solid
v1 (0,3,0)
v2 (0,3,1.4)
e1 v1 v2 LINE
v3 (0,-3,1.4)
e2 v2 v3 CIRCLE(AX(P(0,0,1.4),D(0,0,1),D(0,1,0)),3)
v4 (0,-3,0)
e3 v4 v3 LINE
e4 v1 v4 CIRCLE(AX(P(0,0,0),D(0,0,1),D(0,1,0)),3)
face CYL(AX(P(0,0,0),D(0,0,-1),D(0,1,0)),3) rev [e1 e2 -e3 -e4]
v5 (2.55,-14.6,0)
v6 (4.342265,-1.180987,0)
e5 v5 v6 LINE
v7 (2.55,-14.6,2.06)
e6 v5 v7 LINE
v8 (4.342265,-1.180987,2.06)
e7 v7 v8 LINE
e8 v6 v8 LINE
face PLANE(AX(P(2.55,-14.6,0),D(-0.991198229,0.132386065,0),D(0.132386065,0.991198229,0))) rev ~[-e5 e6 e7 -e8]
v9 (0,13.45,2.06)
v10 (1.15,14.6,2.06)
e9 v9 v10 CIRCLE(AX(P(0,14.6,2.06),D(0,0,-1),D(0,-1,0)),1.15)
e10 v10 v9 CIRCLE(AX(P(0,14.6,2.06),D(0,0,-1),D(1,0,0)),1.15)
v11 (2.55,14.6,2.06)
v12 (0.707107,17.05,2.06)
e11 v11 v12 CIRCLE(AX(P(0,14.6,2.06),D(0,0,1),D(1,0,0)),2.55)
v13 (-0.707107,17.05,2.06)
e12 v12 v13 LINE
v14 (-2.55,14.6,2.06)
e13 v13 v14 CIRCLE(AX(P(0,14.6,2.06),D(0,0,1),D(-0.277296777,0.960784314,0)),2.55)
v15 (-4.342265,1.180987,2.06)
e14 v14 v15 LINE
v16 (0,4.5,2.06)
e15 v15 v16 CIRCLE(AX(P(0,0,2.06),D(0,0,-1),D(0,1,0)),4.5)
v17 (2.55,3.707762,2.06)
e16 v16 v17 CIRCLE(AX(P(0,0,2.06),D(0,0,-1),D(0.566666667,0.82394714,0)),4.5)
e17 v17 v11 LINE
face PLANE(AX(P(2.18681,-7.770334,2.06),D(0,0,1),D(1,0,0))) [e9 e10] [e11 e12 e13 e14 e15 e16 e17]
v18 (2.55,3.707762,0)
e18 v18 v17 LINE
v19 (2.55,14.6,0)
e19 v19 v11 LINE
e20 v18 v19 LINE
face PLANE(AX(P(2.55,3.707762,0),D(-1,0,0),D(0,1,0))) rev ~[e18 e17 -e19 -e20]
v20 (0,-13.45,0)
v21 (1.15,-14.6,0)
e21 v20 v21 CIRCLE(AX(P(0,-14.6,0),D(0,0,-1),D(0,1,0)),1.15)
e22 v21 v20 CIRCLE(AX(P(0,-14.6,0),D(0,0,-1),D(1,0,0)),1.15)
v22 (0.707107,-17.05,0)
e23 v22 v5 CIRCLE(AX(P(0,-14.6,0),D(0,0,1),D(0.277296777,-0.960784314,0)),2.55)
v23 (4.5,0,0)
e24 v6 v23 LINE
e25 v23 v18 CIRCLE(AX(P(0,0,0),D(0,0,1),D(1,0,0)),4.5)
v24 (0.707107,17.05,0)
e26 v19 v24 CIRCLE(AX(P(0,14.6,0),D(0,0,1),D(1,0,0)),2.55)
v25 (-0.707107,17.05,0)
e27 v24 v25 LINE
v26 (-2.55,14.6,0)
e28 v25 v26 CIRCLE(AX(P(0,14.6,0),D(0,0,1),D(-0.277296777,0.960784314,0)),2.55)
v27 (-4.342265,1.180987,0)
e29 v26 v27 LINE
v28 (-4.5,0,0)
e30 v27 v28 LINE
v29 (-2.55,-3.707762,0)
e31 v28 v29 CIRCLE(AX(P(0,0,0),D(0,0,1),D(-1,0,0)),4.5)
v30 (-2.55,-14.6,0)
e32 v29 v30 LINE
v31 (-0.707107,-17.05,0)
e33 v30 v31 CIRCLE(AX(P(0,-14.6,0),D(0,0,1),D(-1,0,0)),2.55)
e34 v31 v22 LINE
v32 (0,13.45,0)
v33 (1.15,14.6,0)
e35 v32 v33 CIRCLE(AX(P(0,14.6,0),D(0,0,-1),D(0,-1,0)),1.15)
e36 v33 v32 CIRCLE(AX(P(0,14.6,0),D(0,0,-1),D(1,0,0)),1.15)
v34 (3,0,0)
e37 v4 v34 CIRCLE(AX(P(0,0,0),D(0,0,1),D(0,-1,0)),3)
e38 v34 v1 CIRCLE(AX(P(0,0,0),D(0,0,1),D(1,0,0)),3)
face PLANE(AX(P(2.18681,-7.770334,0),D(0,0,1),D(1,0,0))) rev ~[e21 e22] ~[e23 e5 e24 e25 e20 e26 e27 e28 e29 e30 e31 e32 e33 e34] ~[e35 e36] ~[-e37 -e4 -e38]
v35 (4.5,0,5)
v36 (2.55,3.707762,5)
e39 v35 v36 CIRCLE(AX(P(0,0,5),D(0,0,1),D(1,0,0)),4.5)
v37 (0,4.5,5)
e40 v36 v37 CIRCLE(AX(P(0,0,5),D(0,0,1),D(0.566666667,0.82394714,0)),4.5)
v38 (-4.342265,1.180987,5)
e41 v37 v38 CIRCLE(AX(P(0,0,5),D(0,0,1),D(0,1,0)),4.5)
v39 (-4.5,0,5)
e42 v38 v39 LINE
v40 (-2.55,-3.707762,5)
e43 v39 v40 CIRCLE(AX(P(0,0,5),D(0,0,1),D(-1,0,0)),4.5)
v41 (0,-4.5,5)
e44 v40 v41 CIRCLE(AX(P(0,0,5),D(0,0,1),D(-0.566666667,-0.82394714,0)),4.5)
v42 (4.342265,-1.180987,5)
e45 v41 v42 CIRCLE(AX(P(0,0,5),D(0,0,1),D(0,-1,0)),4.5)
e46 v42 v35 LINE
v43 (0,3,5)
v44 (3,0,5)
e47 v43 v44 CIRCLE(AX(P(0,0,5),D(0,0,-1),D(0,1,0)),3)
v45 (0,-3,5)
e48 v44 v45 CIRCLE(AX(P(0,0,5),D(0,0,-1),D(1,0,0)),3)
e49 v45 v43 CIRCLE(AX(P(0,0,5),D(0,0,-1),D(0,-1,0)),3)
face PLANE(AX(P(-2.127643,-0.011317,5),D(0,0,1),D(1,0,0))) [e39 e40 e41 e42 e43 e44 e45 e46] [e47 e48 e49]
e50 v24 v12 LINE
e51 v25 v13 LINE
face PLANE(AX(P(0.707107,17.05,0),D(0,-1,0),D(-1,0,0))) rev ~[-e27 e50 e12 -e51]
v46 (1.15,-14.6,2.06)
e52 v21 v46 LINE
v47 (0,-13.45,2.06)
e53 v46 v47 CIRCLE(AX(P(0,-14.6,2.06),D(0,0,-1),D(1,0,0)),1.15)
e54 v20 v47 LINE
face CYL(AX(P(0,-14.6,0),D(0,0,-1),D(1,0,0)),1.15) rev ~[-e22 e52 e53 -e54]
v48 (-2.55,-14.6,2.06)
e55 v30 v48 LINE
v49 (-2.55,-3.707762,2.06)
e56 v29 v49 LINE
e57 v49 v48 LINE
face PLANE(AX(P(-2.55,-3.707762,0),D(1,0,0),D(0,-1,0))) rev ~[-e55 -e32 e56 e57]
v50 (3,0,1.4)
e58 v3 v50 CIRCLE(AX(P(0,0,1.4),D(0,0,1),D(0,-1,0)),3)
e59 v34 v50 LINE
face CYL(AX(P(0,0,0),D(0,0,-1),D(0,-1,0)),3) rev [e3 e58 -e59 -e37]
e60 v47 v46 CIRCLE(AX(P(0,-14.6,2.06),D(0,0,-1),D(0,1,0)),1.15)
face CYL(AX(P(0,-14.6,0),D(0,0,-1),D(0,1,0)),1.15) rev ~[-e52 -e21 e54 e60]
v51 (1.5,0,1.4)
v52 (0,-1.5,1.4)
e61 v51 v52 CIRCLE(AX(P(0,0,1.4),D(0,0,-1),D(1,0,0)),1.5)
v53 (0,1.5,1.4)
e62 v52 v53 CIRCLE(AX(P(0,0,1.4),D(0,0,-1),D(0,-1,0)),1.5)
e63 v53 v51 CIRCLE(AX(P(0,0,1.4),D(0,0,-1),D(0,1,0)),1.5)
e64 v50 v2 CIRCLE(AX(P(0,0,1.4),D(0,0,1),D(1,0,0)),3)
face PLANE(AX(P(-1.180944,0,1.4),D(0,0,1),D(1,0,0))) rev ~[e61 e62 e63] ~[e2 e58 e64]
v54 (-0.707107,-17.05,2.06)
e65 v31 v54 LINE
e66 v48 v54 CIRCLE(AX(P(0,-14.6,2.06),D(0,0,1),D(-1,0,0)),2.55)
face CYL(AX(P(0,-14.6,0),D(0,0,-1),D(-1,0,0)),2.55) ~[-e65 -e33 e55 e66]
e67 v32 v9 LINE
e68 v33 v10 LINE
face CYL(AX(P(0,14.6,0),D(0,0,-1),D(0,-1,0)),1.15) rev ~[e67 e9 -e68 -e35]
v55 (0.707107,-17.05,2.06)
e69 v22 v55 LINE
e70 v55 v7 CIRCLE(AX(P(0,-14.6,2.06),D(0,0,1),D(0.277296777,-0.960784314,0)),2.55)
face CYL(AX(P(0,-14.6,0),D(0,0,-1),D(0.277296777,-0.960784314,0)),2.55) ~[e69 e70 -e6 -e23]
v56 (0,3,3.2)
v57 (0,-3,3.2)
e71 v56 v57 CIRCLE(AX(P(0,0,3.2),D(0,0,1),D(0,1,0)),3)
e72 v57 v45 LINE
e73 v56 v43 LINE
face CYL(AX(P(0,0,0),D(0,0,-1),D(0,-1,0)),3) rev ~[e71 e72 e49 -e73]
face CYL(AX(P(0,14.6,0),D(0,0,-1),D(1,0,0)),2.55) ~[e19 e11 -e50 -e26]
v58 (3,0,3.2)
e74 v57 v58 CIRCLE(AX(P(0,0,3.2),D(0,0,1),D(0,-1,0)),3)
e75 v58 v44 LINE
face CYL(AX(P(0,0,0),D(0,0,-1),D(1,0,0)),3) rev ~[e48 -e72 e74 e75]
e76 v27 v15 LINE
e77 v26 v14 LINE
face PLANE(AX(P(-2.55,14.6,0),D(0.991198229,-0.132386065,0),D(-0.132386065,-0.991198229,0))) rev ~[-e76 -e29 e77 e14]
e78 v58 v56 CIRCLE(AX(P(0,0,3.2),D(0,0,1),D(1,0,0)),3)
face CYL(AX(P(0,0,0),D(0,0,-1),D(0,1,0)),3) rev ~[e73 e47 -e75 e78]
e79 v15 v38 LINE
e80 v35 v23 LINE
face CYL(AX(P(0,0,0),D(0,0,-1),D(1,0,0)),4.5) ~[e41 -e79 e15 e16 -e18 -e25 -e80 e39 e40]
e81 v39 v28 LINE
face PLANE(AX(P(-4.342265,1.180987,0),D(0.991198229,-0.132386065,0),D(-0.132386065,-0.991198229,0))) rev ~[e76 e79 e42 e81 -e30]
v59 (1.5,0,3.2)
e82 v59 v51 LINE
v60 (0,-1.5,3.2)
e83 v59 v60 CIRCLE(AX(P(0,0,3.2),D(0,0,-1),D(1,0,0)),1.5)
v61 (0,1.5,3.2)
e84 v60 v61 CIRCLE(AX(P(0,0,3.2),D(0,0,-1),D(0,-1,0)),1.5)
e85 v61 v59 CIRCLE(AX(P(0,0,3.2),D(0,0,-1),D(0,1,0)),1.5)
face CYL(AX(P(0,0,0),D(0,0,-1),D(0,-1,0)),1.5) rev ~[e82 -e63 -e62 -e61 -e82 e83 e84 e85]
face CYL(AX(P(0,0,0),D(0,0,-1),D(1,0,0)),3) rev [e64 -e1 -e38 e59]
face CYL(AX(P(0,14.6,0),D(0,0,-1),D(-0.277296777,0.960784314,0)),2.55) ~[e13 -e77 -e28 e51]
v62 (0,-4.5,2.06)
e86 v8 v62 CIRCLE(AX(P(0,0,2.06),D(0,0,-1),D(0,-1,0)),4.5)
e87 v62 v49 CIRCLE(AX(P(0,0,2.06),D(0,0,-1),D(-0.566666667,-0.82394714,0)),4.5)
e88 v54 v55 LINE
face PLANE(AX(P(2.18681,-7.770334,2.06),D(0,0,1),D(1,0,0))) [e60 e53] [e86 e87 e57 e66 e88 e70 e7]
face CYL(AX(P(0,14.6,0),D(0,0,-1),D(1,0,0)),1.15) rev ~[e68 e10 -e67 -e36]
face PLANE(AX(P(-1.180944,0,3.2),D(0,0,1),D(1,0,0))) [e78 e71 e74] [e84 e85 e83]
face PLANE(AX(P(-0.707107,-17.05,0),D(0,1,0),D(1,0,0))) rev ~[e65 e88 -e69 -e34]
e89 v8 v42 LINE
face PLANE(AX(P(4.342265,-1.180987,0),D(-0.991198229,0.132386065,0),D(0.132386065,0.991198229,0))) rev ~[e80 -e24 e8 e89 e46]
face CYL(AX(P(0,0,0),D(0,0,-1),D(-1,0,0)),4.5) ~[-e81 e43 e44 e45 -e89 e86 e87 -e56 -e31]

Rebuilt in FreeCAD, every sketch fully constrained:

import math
import FreeCAD as App
import Part
import Sketcher

V = App.Vector
Q = App.Units.Quantity

doc = App.newDocument("Part")
body = doc.addObject("PartDesign::Body", "Body")

# Sketch on XY plane
sketch1 = body.newObject("Sketcher::SketchObject", "Sketch")
sketch1.AttachmentSupport = (doc.getObject("XY_Plane"), [""])
sketch1.MapMode = "FlatFace"
sketch1.addGeometry([
    Part.LineSegment(V(2.55, -14.6, 0), V(4.342265, -1.180987, 0)),  # 0
    Part.LineSegment(V(4.342265, -1.180987, 0), V(4.5, 0, 0)),  # 1
    Part.ArcOfCircle(Part.Circle(V(0, 0, 0), V(0, 0, 1), 4.5), math.radians(0), math.radians(55.481892)),  # 2
    Part.LineSegment(V(2.55, 3.707762, 0), V(2.55, 14.6, 0)),  # 3
    Part.ArcOfCircle(Part.Circle(V(0, 14.6, 0), V(0, 0, 1), 2.55), math.radians(0), math.radians(73.901066)),  # 4
    Part.LineSegment(V(0.707107, 17.05, 0), V(-0.707107, 17.05, 0)),  # 5
    Part.ArcOfCircle(Part.Circle(V(0, 14.6, 0), V(0, 0, 1), 2.55), math.radians(106.098934), math.radians(180)),  # 6
    Part.LineSegment(V(-2.55, 14.6, 0), V(-4.342265, 1.180987, 0)),  # 7
    Part.LineSegment(V(-4.342265, 1.180987, 0), V(-4.5, 0, 0)),  # 8
    Part.ArcOfCircle(Part.Circle(V(0, 0, 0), V(0, 0, 1), 4.5), math.radians(180), math.radians(235.481892)),  # 9
    Part.LineSegment(V(-2.55, -3.707762, 0), V(-2.55, -14.6, 0)),  # 10
    Part.ArcOfCircle(Part.Circle(V(0, -14.6, 0), V(0, 0, 1), 2.55), math.radians(180), math.radians(253.901066)),  # 11
    Part.LineSegment(V(-0.707107, -17.05, 0), V(0.707107, -17.05, 0)),  # 12
    Part.ArcOfCircle(Part.Circle(V(0, -14.6, 0), V(0, 0, 1), 2.55), math.radians(-73.901066), math.radians(0)),  # 13
    Part.ArcOfCircle(Part.Circle(V(0, 0, 0), V(0, 0, 1), 1.5), math.radians(90), math.radians(270)),  # 14
    Part.ArcOfCircle(Part.Circle(V(0, 0, 0), V(0, 0, 1), 1.5), math.radians(0), math.radians(90)),  # 15
    Part.ArcOfCircle(Part.Circle(V(0, 0, 0), V(0, 0, 1), 1.5), math.radians(-90), math.radians(0)),  # 16
    Part.ArcOfCircle(Part.Circle(V(0, -14.6, 0), V(0, 0, 1), 1.15), math.radians(0), math.radians(90)),  # 17
    Part.ArcOfCircle(Part.Circle(V(0, -14.6, 0), V(0, 0, 1), 1.15), math.radians(90), math.radians(360)),  # 18
    Part.ArcOfCircle(Part.Circle(V(0, 14.6, 0), V(0, 0, 1), 1.15), math.radians(0), math.radians(270)),  # 19
    Part.ArcOfCircle(Part.Circle(V(0, 14.6, 0), V(0, 0, 1), 1.15), math.radians(-90), math.radians(0)),  # 20
], False)
sketch1.addConstraint([
    Sketcher.Constraint("Coincident", 0, 2, 1, 1),
    Sketcher.Constraint("Coincident", 1, 2, 2, 1),
    Sketcher.Constraint("Coincident", 2, 2, 3, 1),
    Sketcher.Constraint("Tangent", 3, 2, 4, 1),
    Sketcher.Constraint("Coincident", 4, 2, 5, 1),
    Sketcher.Constraint("Coincident", 5, 2, 6, 1),
    Sketcher.Constraint("Coincident", 6, 2, 7, 1),
    Sketcher.Constraint("Coincident", 7, 2, 8, 1),
    Sketcher.Constraint("Coincident", 8, 2, 9, 1),
    Sketcher.Constraint("Coincident", 9, 2, 10, 1),
    Sketcher.Constraint("Tangent", 10, 2, 11, 1),
    Sketcher.Constraint("Coincident", 11, 2, 12, 1),
    Sketcher.Constraint("Coincident", 12, 2, 13, 1),
    Sketcher.Constraint("Coincident", 13, 2, 0, 1),
    Sketcher.Constraint("Tangent", 14, 1, 15, 2),
    Sketcher.Constraint("Tangent", 15, 1, 16, 2),
    Sketcher.Constraint("Tangent", 16, 1, 14, 2),
    Sketcher.Constraint("Tangent", 17, 1, 18, 2),
    Sketcher.Constraint("Coincident", 18, 1, 17, 2),
    Sketcher.Constraint("Tangent", 19, 1, 20, 2),
    Sketcher.Constraint("Coincident", 20, 1, 19, 2),
    Sketcher.Constraint("Vertical", 3),
    Sketcher.Constraint("Horizontal", 5),
    Sketcher.Constraint("Vertical", 10),
    Sketcher.Constraint("Horizontal", 12),
    Sketcher.Constraint("Coincident", 2, 3, -1, 1),
    Sketcher.Constraint("Coincident", 9, 3, -1, 1),
    Sketcher.Constraint("Coincident", 14, 3, -1, 1),
    Sketcher.Constraint("Coincident", 6, 3, 4, 3),
    Sketcher.Constraint("Coincident", 13, 3, 11, 3),
    Sketcher.Constraint("Coincident", 17, 3, 11, 3),
    Sketcher.Constraint("Coincident", 19, 3, 4, 3),
    Sketcher.Constraint("Equal", 4, 6),
    Sketcher.Constraint("Equal", 2, 9),
    Sketcher.Constraint("Equal", 6, 11),
    Sketcher.Constraint("Equal", 11, 13),
    Sketcher.Constraint("Equal", 18, 19),
    Sketcher.Constraint("Symmetric", 4, 3, 11, 3, -1, 1),
    Sketcher.Constraint("Symmetric", 0, 2, 7, 2, -1, 1),
    Sketcher.Constraint("Symmetric", 3, 2, 6, 2, -2),
    Sketcher.Constraint("PointOnObject", 1, 2, -1),
    Sketcher.Constraint("PointOnObject", 8, 2, -1),
    Sketcher.Constraint("PointOnObject", 14, 1, -2),
    Sketcher.Constraint("PointOnObject", 15, 1, -1),
    Sketcher.Constraint("PointOnObject", 16, 1, -2),
    Sketcher.Constraint("PointOnObject", 18, 1, -2),
    Sketcher.Constraint("PointOnObject", 20, 1, -2),
    Sketcher.Constraint("Parallel", 0, 1),
    Sketcher.Constraint("Parallel", 1, 7),
    Sketcher.Constraint("Horizontal", 13, 2, 17, 1),
    Sketcher.Constraint("Horizontal", 6, 2, 19, 1),
    Sketcher.Constraint("Vertical", 5, 2, 11, 2),
    Sketcher.Constraint("Radius", 2, Q("4.5 mm")),
    Sketcher.Constraint("Radius", 14, Q("1.5 mm")),
    Sketcher.Constraint("Radius", 4, Q("2.55 mm")),
    Sketcher.Constraint("Radius", 17, Q("1.15 mm")),
    Sketcher.Constraint("DistanceY", -1, 1, 4, 3, Q("14.6 mm")),
    Sketcher.Constraint("DistanceY", -1, 1, 4, 2, Q("17.05 mm")),
    Sketcher.Constraint("Distance", 0, Q("13.538172 mm")),
])
pad1 = body.newObject("PartDesign::Pad", "Pad")
pad1.Profile = sketch1
pad1.Length = 2.06

# Sketch on XY plane
sketch2 = body.newObject("Sketcher::SketchObject", "Sketch001")
sketch2.AttachmentSupport = (doc.getObject("XY_Plane"), [""])
sketch2.MapMode = "FlatFace"
sketch2.addGeometry([
    Part.ArcOfCircle(Part.Circle(V(0, 0, 0), V(0, 0, 1), 3), math.radians(90), math.radians(270)),  # 0
    Part.ArcOfCircle(Part.Circle(V(0, 0, 0), V(0, 0, 1), 3), math.radians(-90), math.radians(0)),  # 1
    Part.ArcOfCircle(Part.Circle(V(0, 0, 0), V(0, 0, 1), 3), math.radians(0), math.radians(90)),  # 2
    Part.ArcOfCircle(Part.Circle(V(0, 0, 0), V(0, 0, 1), 1.5), math.radians(90), math.radians(270)),  # 3
    Part.ArcOfCircle(Part.Circle(V(0, 0, 0), V(0, 0, 1), 1.5), math.radians(0), math.radians(90)),  # 4
    Part.ArcOfCircle(Part.Circle(V(0, 0, 0), V(0, 0, 1), 1.5), math.radians(-90), math.radians(0)),  # 5
], False)
sketch2.addConstraint([
    Sketcher.Constraint("Tangent", 0, 2, 1, 1),
    Sketcher.Constraint("Tangent", 1, 2, 2, 1),
    Sketcher.Constraint("Tangent", 2, 2, 0, 1),
    Sketcher.Constraint("Tangent", 3, 1, 4, 2),
    Sketcher.Constraint("Tangent", 4, 1, 5, 2),
    Sketcher.Constraint("Tangent", 5, 1, 3, 2),
    Sketcher.Constraint("Coincident", 0, 3, -1, 1),
    Sketcher.Constraint("Coincident", 3, 3, -1, 1),
    Sketcher.Constraint("PointOnObject", 0, 2, -2),
    Sketcher.Constraint("PointOnObject", 1, 2, -1),
    Sketcher.Constraint("PointOnObject", 2, 2, -2),
    Sketcher.Constraint("PointOnObject", 3, 1, -2),
    Sketcher.Constraint("PointOnObject", 4, 1, -1),
    Sketcher.Constraint("PointOnObject", 5, 1, -2),
    Sketcher.Constraint("Radius", 0, Q("3 mm")),
    Sketcher.Constraint("Radius", 3, Q("1.5 mm")),
])
pad2 = body.newObject("PartDesign::Pad", "Pad001")
pad2.Profile = sketch2
pad2.Length = 3.2

# Sketch on XY plane
sketch3 = body.newObject("Sketcher::SketchObject", "Sketch002")
sketch3.AttachmentSupport = (doc.getObject("XY_Plane"), [""])
sketch3.MapMode = "FlatFace"
sketch3.addGeometry([
    Part.ArcOfCircle(Part.Circle(V(0, 0, 0), V(0, 0, 1), 4.5), math.radians(90), math.radians(164.785009)),  # 0
    Part.LineSegment(V(-4.342265, 1.180987, 0), V(-4.5, 0, 0)),  # 1
    Part.ArcOfCircle(Part.Circle(V(0, 0, 0), V(0, 0, 1), 4.5), math.radians(180), math.radians(235.481892)),  # 2
    Part.ArcOfCircle(Part.Circle(V(0, 0, 0), V(0, 0, 1), 4.5), math.radians(-124.518108), math.radians(-90)),  # 3
    Part.ArcOfCircle(Part.Circle(V(0, 0, 0), V(0, 0, 1), 4.5), math.radians(-90), math.radians(-15.214991)),  # 4
    Part.LineSegment(V(4.342265, -1.180987, 0), V(4.5, 0, 0)),  # 5
    Part.ArcOfCircle(Part.Circle(V(0, 0, 0), V(0, 0, 1), 4.5), math.radians(0), math.radians(55.481892)),  # 6
    Part.ArcOfCircle(Part.Circle(V(0, 0, 0), V(0, 0, 1), 4.5), math.radians(55.481892), math.radians(90)),  # 7
    Part.ArcOfCircle(Part.Circle(V(0, 0, 0), V(0, 0, 1), 3), math.radians(90), math.radians(270)),  # 8
    Part.ArcOfCircle(Part.Circle(V(0, 0, 0), V(0, 0, 1), 3), math.radians(0), math.radians(90)),  # 9
    Part.ArcOfCircle(Part.Circle(V(0, 0, 0), V(0, 0, 1), 3), math.radians(-90), math.radians(0)),  # 10
], False)
sketch3.addConstraint([
    Sketcher.Constraint("Coincident", 0, 2, 1, 1),
    Sketcher.Constraint("Coincident", 1, 2, 2, 1),
    Sketcher.Constraint("Tangent", 2, 2, 3, 1),
    Sketcher.Constraint("Tangent", 3, 2, 4, 1),
    Sketcher.Constraint("Coincident", 4, 2, 5, 1),
    Sketcher.Constraint("Coincident", 5, 2, 6, 1),
    Sketcher.Constraint("Tangent", 6, 2, 7, 1),
    Sketcher.Constraint("Tangent", 7, 2, 0, 1),
    Sketcher.Constraint("Tangent", 8, 1, 9, 2),
    Sketcher.Constraint("Tangent", 9, 1, 10, 2),
    Sketcher.Constraint("Tangent", 10, 1, 8, 2),
    Sketcher.Constraint("Coincident", 0, 3, -1, 1),
    Sketcher.Constraint("Coincident", 2, 3, -1, 1),
    Sketcher.Constraint("Coincident", 4, 3, -1, 1),
    Sketcher.Constraint("Coincident", 6, 3, -1, 1),
    Sketcher.Constraint("Coincident", 8, 3, -1, 1),
    Sketcher.Constraint("Equal", 0, 2),
    Sketcher.Constraint("PointOnObject", 1, 2, -1),
    Sketcher.Constraint("PointOnObject", 3, 2, -2),
    Sketcher.Constraint("PointOnObject", 5, 2, -1),
    Sketcher.Constraint("PointOnObject", 7, 2, -2),
    Sketcher.Constraint("PointOnObject", 8, 1, -2),
    Sketcher.Constraint("PointOnObject", 9, 1, -1),
    Sketcher.Constraint("PointOnObject", 10, 1, -2),
    Sketcher.Constraint("Parallel", 1, 5),
    Sketcher.Constraint("Radius", 8, Q("3 mm")),
    Sketcher.Constraint("Radius", 0, Q("4.5 mm")),
    Sketcher.Constraint("DistanceX", 2, 2, -1, 1, Q("2.55 mm")),
    Sketcher.Constraint("DistanceX", -1, 1, 6, 2, Q("2.55 mm")),
    Sketcher.Constraint("Distance", 1, Q("1.191475 mm")),
])
pad3 = body.newObject("PartDesign::Pad", "Pad002")
pad3.Profile = sketch3
pad3.Length = 5

# Sketch on XY plane
sketch4 = body.newObject("Sketcher::SketchObject", "Sketch003")
sketch4.AttachmentSupport = (doc.getObject("XY_Plane"), [""])
sketch4.MapMode = "FlatFace"
sketch4.addGeometry([
    Part.ArcOfCircle(Part.Circle(V(0, 0, 0), V(0, 0, 1), 3), math.radians(90), math.radians(270)),  # 0
    Part.ArcOfCircle(Part.Circle(V(0, 0, 0), V(0, 0, 1), 3), math.radians(-90), math.radians(0)),  # 1
    Part.ArcOfCircle(Part.Circle(V(0, 0, 0), V(0, 0, 1), 3), math.radians(0), math.radians(90)),  # 2
    Part.ArcOfCircle(Part.Circle(V(0, 0, 0), V(0, 0, 1), 1.5), math.radians(90), math.radians(270)),  # 3
    Part.ArcOfCircle(Part.Circle(V(0, 0, 0), V(0, 0, 1), 1.5), math.radians(0), math.radians(90)),  # 4
    Part.ArcOfCircle(Part.Circle(V(0, 0, 0), V(0, 0, 1), 1.5), math.radians(-90), math.radians(0)),  # 5
], False)
sketch4.addConstraint([
    Sketcher.Constraint("Tangent", 0, 2, 1, 1),
    Sketcher.Constraint("Tangent", 1, 2, 2, 1),
    Sketcher.Constraint("Tangent", 2, 2, 0, 1),
    Sketcher.Constraint("Tangent", 3, 1, 4, 2),
    Sketcher.Constraint("Tangent", 4, 1, 5, 2),
    Sketcher.Constraint("Tangent", 5, 1, 3, 2),
    Sketcher.Constraint("Coincident", 0, 3, -1, 1),
    Sketcher.Constraint("Coincident", 3, 3, -1, 1),
    Sketcher.Constraint("PointOnObject", 0, 2, -2),
    Sketcher.Constraint("PointOnObject", 1, 2, -1),
    Sketcher.Constraint("PointOnObject", 2, 2, -2),
    Sketcher.Constraint("PointOnObject", 3, 1, -2),
    Sketcher.Constraint("PointOnObject", 4, 1, -1),
    Sketcher.Constraint("PointOnObject", 5, 1, -2),
    Sketcher.Constraint("Radius", 0, Q("3 mm")),
    Sketcher.Constraint("Radius", 3, Q("1.5 mm")),
])
pocket1 = body.newObject("PartDesign::Pocket", "Pocket")
pocket1.Profile = sketch4
pocket1.Length = 1.4
pocket1.Reversed = True

doc.recompute()
